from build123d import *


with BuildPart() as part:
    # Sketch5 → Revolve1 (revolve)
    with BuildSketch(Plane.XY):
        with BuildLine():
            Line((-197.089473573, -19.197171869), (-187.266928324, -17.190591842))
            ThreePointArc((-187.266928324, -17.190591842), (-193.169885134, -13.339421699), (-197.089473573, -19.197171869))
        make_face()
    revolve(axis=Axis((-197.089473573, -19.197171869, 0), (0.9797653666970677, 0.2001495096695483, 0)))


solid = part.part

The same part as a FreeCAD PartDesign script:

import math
import FreeCAD as App
import Part
import Sketcher

doc = App.newDocument("Part")
body = doc.addObject("PartDesign::Body", "Body")

# Sketch on XY plane
sketch1 = doc.addObject("Sketcher::SketchObject", "Sketch")
body.addObject(sketch1)
sketch1.AttachmentSupport = (doc.XY_Plane, [""])
sketch1.MapMode = "FlatFace"
sketch1.addGeometry([
    Part.LineSegment(App.Vector(-197, -19, 0), App.Vector(-187, -17, 0)),
    Part.ArcOfCircle(Part.Circle(App.Vector(-192, -18, 0), App.Vector(0, 0, 1), 5), math.radians(12), math.radians(191)),
], False)
sketch1.addGeometry(Part.LineSegment(App.Vector(-197, -19, 0), App.Vector(-187, -17, 0)), True)  # axis
sketch1.addConstraint([
    Sketcher.Constraint("Coincident", 0, 1, 1, 2),
    Sketcher.Constraint("Coincident", 1, 1, 0, 2),
    Sketcher.Constraint("Coincident", 2, 1, 0, 1),
    Sketcher.Constraint("Coincident", 2, 2, 1, 1),
    Sketcher.Constraint("Radius", 1, 5.013042),
    Sketcher.Constraint("DistanceX", 1, 3, 1, 1, 4.899599),
    Sketcher.Constraint("DistanceY", 0, 1, -1, 1, 19.197172),
    Sketcher.Constraint("DistanceX", 1, 1, -1, 1, 187.266928),
    Sketcher.Constraint("DistanceY", 1, 1, -1, 1, 17.190592),
])
revolution = doc.addObject("PartDesign::Revolution", "Revolution")
body.addObject(revolution)
revolution.Profile = sketch1
revolution.ReferenceAxis = (sketch1, ["Axis0"])
revolution.Angle = 360

doc.recompute()
